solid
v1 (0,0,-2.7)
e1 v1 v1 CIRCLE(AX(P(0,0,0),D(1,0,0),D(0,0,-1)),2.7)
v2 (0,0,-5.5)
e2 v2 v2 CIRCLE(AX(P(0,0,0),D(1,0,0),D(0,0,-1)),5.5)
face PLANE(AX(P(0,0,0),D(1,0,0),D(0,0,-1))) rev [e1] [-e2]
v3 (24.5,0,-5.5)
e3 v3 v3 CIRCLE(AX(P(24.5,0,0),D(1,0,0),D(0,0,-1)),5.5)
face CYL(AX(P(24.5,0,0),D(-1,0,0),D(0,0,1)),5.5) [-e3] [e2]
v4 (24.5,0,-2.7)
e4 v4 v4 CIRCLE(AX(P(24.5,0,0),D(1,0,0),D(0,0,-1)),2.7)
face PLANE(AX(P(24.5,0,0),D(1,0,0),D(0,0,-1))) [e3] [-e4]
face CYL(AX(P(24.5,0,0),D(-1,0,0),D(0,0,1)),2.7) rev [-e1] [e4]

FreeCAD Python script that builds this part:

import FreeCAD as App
import Part
import Sketcher
Q = App.Units.Quantity

doc = App.newDocument("Part")
body = doc.addObject("PartDesign::Body", "Body")

# Sketch on YZ plane
sketch1 = body.newObject("Sketcher::SketchObject", "Sketch")
sketch1.AttachmentSupport = (doc.getObject("YZ_Plane"), [""])
sketch1.MapMode = "FlatFace"
sketch1.addGeometry([
    Part.Circle(App.Vector(0, 0, 0), App.Vector(0, 0, 1), 5.5),
    Part.Circle(App.Vector(0, 0, 0), App.Vector(0, 0, 1), 2.7),
], False)
sketch1.addConstraint([
    Sketcher.Constraint("Coincident", 0, 3, -1, 1),
    Sketcher.Constraint("Coincident", 1, 3, -1, 1),
    Sketcher.Constraint("Diameter", 0, Q("11 mm")),
    Sketcher.Constraint("Diameter", 1, Q("5.4 mm")),
])
pad1 = body.newObject("PartDesign::Pad", "Pad")
pad1.Profile = sketch1
pad1.Length = 24.5

doc.recompute()
